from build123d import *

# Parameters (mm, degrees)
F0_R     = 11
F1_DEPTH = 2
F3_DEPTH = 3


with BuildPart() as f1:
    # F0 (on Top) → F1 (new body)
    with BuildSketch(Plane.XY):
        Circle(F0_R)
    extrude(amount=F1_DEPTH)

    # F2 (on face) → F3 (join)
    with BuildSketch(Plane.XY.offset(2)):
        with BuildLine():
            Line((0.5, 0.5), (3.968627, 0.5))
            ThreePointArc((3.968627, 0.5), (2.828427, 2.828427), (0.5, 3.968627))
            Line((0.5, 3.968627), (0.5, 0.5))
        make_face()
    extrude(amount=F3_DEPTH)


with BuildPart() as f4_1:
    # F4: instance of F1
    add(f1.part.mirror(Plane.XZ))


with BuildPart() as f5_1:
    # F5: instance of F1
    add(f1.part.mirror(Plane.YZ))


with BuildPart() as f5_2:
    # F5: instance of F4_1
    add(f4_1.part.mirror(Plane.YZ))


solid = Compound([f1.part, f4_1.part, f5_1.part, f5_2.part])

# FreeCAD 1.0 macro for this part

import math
import FreeCAD as App
import Part
import Sketcher

V = App.Vector

doc = App.newDocument("Part")
body = doc.addObject("PartDesign::Body", "Body")

sketch1 = body.newObject("Sketcher::SketchObject", "Sketch")
sketch1.AttachmentSupport = (doc.getObject("XY_Plane"), [""])
sketch1.MapMode = "FlatFace"
sketch1.addGeometry(Part.Circle(V(0, 0, 0), V(0, 0, 1), 11), False)
sketch1.addConstraint(Sketcher.Constraint("Coincident", 0, 3, -1, 1))
sketch1.addConstraint(Sketcher.Constraint("Diameter", 0, 22.0))
pad1 = body.newObject("PartDesign::Pad", "Pad")
pad1.Profile = sketch1
pad1.Length = 2

sketch2 = body.newObject("Sketcher::SketchObject", "Sketch001")
sketch2.AttachmentSupport = (doc.getObject("XY_Plane"), [""])
sketch2.MapMode = "FlatFace"
sketch2.AttachmentOffset = App.Placement(V(0, 0, 2), App.Rotation())
sketch2.addGeometry(Part.LineSegment(V(0.5, 0.5, 0), V(4, 0.5, 0)), False)
sketch2.addGeometry(Part.ArcOfCircle(Part.Circle(V(0, 0, 0), V(0, 0, 1), 4), math.radians(7), math.radians(83)), False)
sketch2.addGeometry(Part.LineSegment(V(0.5, 4, 0), V(0.5, 0.5, 0)), False)
sketch2.addConstraint(Sketcher.Constraint("Coincident", 0, 2, 1, 1))
sketch2.addConstraint(Sketcher.Constraint("Coincident", 1, 2, 2, 1))
sketch2.addConstraint(Sketcher.Constraint("Coincident", 2, 2, 0, 1))
sketch2.addConstraint(Sketcher.Constraint("Horizontal", 0))
sketch2.addConstraint(Sketcher.Constraint("Vertical", 2))
sketch2.addConstraint(Sketcher.Constraint("Coincident", 1, 3, -1, 1))
sketch2.addConstraint(Sketcher.Constraint("Equal", 0, 2))
sketch2.addConstraint(Sketcher.Constraint("Radius", 1, 4.000001))
sketch2.addConstraint(Sketcher.Constraint("DistanceY", -1, 1, 0, 2, 0.5))
pad2 = body.newObject("PartDesign::Pad", "Pad001")
pad2.Profile = sketch2
pad2.Length = 3
body2 = doc.addObject("PartDesign::Body", "Body001")
doc.recompute()

mirroring = doc.addObject("Part::Mirroring", "Mirroring")
mirroring.Source = body
mirroring.Base = V(0, 0, 0)
mirroring.Normal = V(0, -1, 0)
body2.BaseFeature = mirroring
doc.recompute()
body3 = doc.addObject("PartDesign::Body", "Body002")
doc.recompute()

mirroring2 = doc.addObject("Part::Mirroring", "Mirroring001")
mirroring2.Source = body
mirroring2.Base = V(0, 0, 0)
mirroring2.Normal = V(1, 0, 0)
body3.BaseFeature = mirroring2
doc.recompute()
body4 = doc.addObject("PartDesign::Body", "Body003")
doc.recompute()

mirroring3 = doc.addObject("Part::Mirroring", "Mirroring002")
mirroring3.Source = body2
mirroring3.Base = V(0, 0, 0)
mirroring3.Normal = V(1, 0, 0)
body4.BaseFeature = mirroring3
doc.recompute()
mirroring.Visibility = False
mirroring2.Visibility = False
mirroring3.Visibility = False

doc.recompute()
